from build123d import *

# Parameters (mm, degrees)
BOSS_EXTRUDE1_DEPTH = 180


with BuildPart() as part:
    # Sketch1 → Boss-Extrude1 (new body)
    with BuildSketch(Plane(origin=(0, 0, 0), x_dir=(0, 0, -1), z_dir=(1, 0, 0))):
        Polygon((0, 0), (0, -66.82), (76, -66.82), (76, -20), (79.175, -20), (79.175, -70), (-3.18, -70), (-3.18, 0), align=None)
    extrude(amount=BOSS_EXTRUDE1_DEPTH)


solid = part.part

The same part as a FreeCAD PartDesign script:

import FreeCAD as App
import Part
import Sketcher

doc = App.newDocument("Part")
params = doc.addObject("Spreadsheet::Sheet", "Params")
for row, (alias, value) in enumerate([
    ("sketch1_width", "70 mm"),
    ("sketch1_width2", "50 mm"),
    ("sketch1_height", "76 mm"),
    ("sketch1_width3", "66.82 mm"),
    ("sketch1_height2", "3.18 mm"),
    ("pad1_length", "180 mm"),
], start=1):
    params.set(f"A{row}", alias)
    params.set(f"B{row}", "=" + value)
    params.setAlias(f"B{row}", alias)

body = doc.addObject("PartDesign::Body", "Body")

# Sketch on YZ plane
sketch1 = body.newObject("Sketcher::SketchObject", "Sketch")
sketch1.AttachmentSupport = (doc.getObject("YZ_Plane"), [""])
sketch1.MapMode = "FlatFace"
sketch1.addGeometry([
    Part.LineSegment(App.Vector(-66.8, 0, 0), App.Vector(0, 0, 0)),  # 0
    Part.LineSegment(App.Vector(0, 0, 0), App.Vector(0, 3.2, 0)),  # 1
    Part.LineSegment(App.Vector(0, 3.2, 0), App.Vector(-70, 3.2, 0)),  # 2
    Part.LineSegment(App.Vector(-70, 3.2, 0), App.Vector(-70, -79.2, 0)),  # 3
    Part.LineSegment(App.Vector(-70, -79.2, 0), App.Vector(-20, -79.2, 0)),  # 4
    Part.LineSegment(App.Vector(-20, -79.2, 0), App.Vector(-20, -76, 0)),  # 5
    Part.LineSegment(App.Vector(-20, -76, 0), App.Vector(-66.8, -76, 0)),  # 6
    Part.LineSegment(App.Vector(-66.8, -76, 0), App.Vector(-66.8, 0, 0)),  # 7
], False)
sketch1.addConstraint([
    Sketcher.Constraint("Coincident", 0, 2, 1, 1),
    Sketcher.Constraint("Coincident", 1, 2, 2, 1),
    Sketcher.Constraint("Coincident", 2, 2, 3, 1),
    Sketcher.Constraint("Coincident", 3, 2, 4, 1),
    Sketcher.Constraint("Coincident", 4, 2, 5, 1),
    Sketcher.Constraint("Coincident", 5, 2, 6, 1),
    Sketcher.Constraint("Coincident", 6, 2, 7, 1),
    Sketcher.Constraint("Coincident", 7, 2, 0, 1),
    Sketcher.Constraint("Horizontal", 0),
    Sketcher.Constraint("Vertical", 1),
    Sketcher.Constraint("Horizontal", 2),
    Sketcher.Constraint("Vertical", 3),
    Sketcher.Constraint("Horizontal", 4),
    Sketcher.Constraint("Vertical", 5),
    Sketcher.Constraint("Horizontal", 6),
    Sketcher.Constraint("Vertical", 7),
    Sketcher.Constraint("Coincident", 0, 2, -1, 1),
    Sketcher.Constraint("DistanceX", 2, 2, 2, 1, 70.0),
    Sketcher.Constraint("DistanceX", 4, 1, 4, 2, 50.0),
    Sketcher.Constraint("DistanceY", 7, 1, 7, 2, 76.0),
    Sketcher.Constraint("DistanceX", 0, 1, 0, 2, 66.82),
    Sketcher.Constraint("DistanceY", 1, 1, 1, 2, 3.18),
    Sketcher.Constraint("DistanceY", 3, 2, 3, 1, 82.355),
])
sketch1.setExpression("Constraints[17]", "Params.sketch1_width")
sketch1.setExpression("Constraints[18]", "Params.sketch1_width2")
sketch1.setExpression("Constraints[19]", "Params.sketch1_height")
sketch1.setExpression("Constraints[20]", "Params.sketch1_width3")
sketch1.setExpression("Constraints[21]", "Params.sketch1_height2")
pad1 = body.newObject("PartDesign::Pad", "Pad")
pad1.Profile = sketch1
pad1.setExpression("Length", "Params.pad1_length")

doc.recompute()
